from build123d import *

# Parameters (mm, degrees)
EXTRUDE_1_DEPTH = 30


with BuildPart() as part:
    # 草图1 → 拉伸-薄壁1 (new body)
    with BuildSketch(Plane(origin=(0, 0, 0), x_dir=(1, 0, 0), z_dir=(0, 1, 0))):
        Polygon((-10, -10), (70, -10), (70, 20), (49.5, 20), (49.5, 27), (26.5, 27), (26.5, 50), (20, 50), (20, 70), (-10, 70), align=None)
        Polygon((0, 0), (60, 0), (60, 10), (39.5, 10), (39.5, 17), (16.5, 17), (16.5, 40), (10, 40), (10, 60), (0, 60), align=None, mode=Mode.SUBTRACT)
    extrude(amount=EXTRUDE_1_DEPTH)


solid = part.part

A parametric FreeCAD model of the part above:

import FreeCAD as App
import Part
import Sketcher

V = App.Vector
Q = App.Units.Quantity


def add_polygon(sketch, points):
    """Adds a closed chain of lines whose ends are joined by coincident constraints."""
    first, n = sketch.GeometryCount, len(points)
    for a, b in zip(points, points[1:] + points[:1]):
        sketch.addGeometry(Part.LineSegment(App.Vector(*a, 0), App.Vector(*b, 0)), False)
    for i in range(n):
        sketch.addConstraint(Sketcher.Constraint("Coincident", first + i, 2, first + (i + 1) % n, 1))

doc = App.newDocument("Part")
params = doc.addObject("Spreadsheet::Sheet", "Params")
for row, (alias, value) in enumerate([
    ("sketch1_width", "80 mm"),
    ("sketch1_width2", "23 mm"),
    ("sketch1_width3", "30 mm"),
    ("sketch1_width4", "60 mm"),
    ("sketch1_height", "7 mm"),
    ("pad1_length", "30 mm"),
], start=1):
    params.set(f"A{row}", alias)
    params.set(f"B{row}", "=" + value)
    params.setAlias(f"B{row}", alias)

body = doc.addObject("PartDesign::Body", "Body")

sketch1 = body.newObject("Sketcher::SketchObject", "Sketch")
sketch1.AttachmentSupport = (doc.getObject("XZ_Plane"), [""])
sketch1.MapMode = "FlatFace"
add_polygon(sketch1, [(-10, 10), (70, 10), (70, -20), (50, -20), (50, -27), (26, -27), (26, -50), (20, -50), (20, -70), (-10, -70)])
add_polygon(sketch1, [(60, 0), (0, 0), (0, -60), (10, -60), (10, -40), (16, -40), (16, -17), (40, -17), (40, -10), (60, -10)])
sketch1.addConstraint([
    Sketcher.Constraint("Horizontal", 0),
    Sketcher.Constraint("Vertical", 1),
    Sketcher.Constraint("Horizontal", 2),
    Sketcher.Constraint("Vertical", 3),
    Sketcher.Constraint("Horizontal", 4),
    Sketcher.Constraint("Vertical", 5),
    Sketcher.Constraint("Horizontal", 6),
    Sketcher.Constraint("Vertical", 7),
    Sketcher.Constraint("Horizontal", 8),
    Sketcher.Constraint("Vertical", 9),
    Sketcher.Constraint("Horizontal", 10),
    Sketcher.Constraint("Vertical", 11),
    Sketcher.Constraint("Horizontal", 12),
    Sketcher.Constraint("Vertical", 13),
    Sketcher.Constraint("Horizontal", 14),
    Sketcher.Constraint("Vertical", 15),
    Sketcher.Constraint("Horizontal", 16),
    Sketcher.Constraint("Vertical", 17),
    Sketcher.Constraint("Horizontal", 18),
    Sketcher.Constraint("Vertical", 19),
    Sketcher.Constraint("Coincident", 10, 2, -1, 1),
    Sketcher.Constraint("Equal", 6, 14),
    Sketcher.Constraint("Equal", 4, 16),
    Sketcher.Constraint("Equal", 2, 18),
    Sketcher.Constraint("Equal", 8, 1),
    Sketcher.Constraint("Equal", 16, 5),
    Sketcher.Constraint("Equal", 0, 9),
    Sketcher.Constraint("Equal", 10, 11),
    Sketcher.Constraint("Equal", 7, 13),
    Sketcher.Constraint("Equal", 5, 15),
    Sketcher.Constraint("Equal", 3, 17),
    Sketcher.Constraint("DistanceX", 0, 1, 0, 2, Q("80 mm")),
    Sketcher.Constraint("DistanceX", 4, 2, 4, 1, Q("23 mm")),
    Sketcher.Constraint("DistanceX", 8, 2, 8, 1, Q("30 mm")),
    Sketcher.Constraint("DistanceX", 10, 2, 10, 1, Q("60 mm")),
    Sketcher.Constraint("DistanceY", 3, 2, 3, 1, Q("7 mm")),
    Sketcher.Constraint("DistanceX", 2, 2, 2, 1, Q("20.5 mm")),
    Sketcher.Constraint("DistanceX", -1, 1, 0, 2, Q("70 mm")),
    Sketcher.Constraint("DistanceY", -1, 1, 0, 2, Q("10 mm")),
])
sketch1.setExpression("Constraints[51]", "Params.sketch1_width")
sketch1.setExpression("Constraints[52]", "Params.sketch1_width2")
sketch1.setExpression("Constraints[53]", "Params.sketch1_width3")
sketch1.setExpression("Constraints[54]", "Params.sketch1_width4")
sketch1.setExpression("Constraints[55]", "Params.sketch1_height")
pad1 = body.newObject("PartDesign::Pad", "Pad")
pad1.Profile = sketch1
pad1.setExpression("Length", "Params.pad1_length")
pad1.Reversed = True

doc.recompute()
